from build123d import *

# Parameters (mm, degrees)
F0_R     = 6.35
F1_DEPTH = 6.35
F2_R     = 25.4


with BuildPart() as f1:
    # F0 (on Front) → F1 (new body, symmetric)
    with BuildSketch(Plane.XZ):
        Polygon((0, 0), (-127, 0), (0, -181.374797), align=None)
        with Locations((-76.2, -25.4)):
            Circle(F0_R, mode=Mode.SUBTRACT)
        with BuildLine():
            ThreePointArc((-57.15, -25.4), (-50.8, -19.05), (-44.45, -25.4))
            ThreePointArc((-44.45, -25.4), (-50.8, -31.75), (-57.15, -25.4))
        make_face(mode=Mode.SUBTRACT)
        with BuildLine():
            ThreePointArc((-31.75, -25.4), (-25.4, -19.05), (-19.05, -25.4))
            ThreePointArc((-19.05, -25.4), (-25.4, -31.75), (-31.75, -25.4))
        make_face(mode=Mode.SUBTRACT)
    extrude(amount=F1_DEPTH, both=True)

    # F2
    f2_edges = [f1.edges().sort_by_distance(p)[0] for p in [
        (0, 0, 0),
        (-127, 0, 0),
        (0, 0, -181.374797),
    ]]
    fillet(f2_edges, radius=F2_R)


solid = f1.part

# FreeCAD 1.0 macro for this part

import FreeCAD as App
import Part
import Sketcher
from FreeCAD import Vector
Q = App.Units.Quantity


def edges_at(feature, points):
    """Names of the edges that pass closest to the given points."""
    edges = feature.Shape.Edges
    near = lambda p: min(range(len(edges)), key=lambda i: edges[i].distToShape(Part.Vertex(*p))[0])
    return sorted({f"Edge{near(p) + 1}" for p in points})


def add_polygon(sketch, points):
    """Adds a closed chain of lines whose ends are joined by coincident constraints."""
    first, n = sketch.GeometryCount, len(points)
    for a, b in zip(points, points[1:] + points[:1]):
        sketch.addGeometry(Part.LineSegment(App.Vector(*a, 0), App.Vector(*b, 0)), False)
    for i in range(n):
        sketch.addConstraint(Sketcher.Constraint("Coincident", first + i, 2, first + (i + 1) % n, 1))

doc = App.newDocument("Part")
body = doc.addObject("PartDesign::Body", "Body")

sketch1 = body.newObject("Sketcher::SketchObject", "Sketch")
sketch1.AttachmentSupport = (doc.getObject("XZ_Plane"), [""])
sketch1.MapMode = "FlatFace"
add_polygon(sketch1, [(0, 0), (-127, 0), (0, -181)])
sketch1.addGeometry(Part.Circle(Vector(-51, -25, 0), Vector(0, 0, 1), 6), False)
sketch1.addGeometry(Part.Circle(Vector(-76, -25, 0), Vector(0, 0, 1), 6), False)
sketch1.addGeometry(Part.Circle(Vector(-25, -25, 0), Vector(0, 0, 1), 6), False)
sketch1.addConstraint([
    Sketcher.Constraint("Horizontal", 0),
    Sketcher.Constraint("Vertical", 2),
    Sketcher.Constraint("Coincident", 2, 2, -1, 1),
    Sketcher.Constraint("Equal", 3, 4),
    Sketcher.Constraint("Equal", 4, 5),
    Sketcher.Constraint("Horizontal", 3, 3, 4, 3),
    Sketcher.Constraint("Horizontal", 4, 3, 5, 3),
    Sketcher.Constraint("Diameter", 3, Q("0.5 in")),
    Sketcher.Constraint("DistanceX", 0, 2, 0, 1, Q("5 in")),
    Sketcher.Constraint("DistanceX", 3, 3, -1, 1, Q("2 in")),
    Sketcher.Constraint("DistanceY", 3, 3, -1, 1, Q("1 in")),
    Sketcher.Constraint("DistanceX", 4, 3, -1, 1, Q("3 in")),
    Sketcher.Constraint("DistanceX", 5, 3, -1, 1, Q("1 in")),
    Sketcher.Constraint("Angle", 1, Q("-55 deg")),
])
pad1 = body.newObject("PartDesign::Pad", "Pad")
pad1.Profile = sketch1
pad1.Length = Q("0.5 in")
pad1.Midplane = True
doc.recompute()

fillet = body.newObject("PartDesign::Fillet", "Fillet")
fillet.Base = (pad1, edges_at(pad1, [(0, 0, 0), (-127, 0, 0), (0, 0, -181.375)]))
fillet.Radius = Q("1 in")

doc.recompute()
